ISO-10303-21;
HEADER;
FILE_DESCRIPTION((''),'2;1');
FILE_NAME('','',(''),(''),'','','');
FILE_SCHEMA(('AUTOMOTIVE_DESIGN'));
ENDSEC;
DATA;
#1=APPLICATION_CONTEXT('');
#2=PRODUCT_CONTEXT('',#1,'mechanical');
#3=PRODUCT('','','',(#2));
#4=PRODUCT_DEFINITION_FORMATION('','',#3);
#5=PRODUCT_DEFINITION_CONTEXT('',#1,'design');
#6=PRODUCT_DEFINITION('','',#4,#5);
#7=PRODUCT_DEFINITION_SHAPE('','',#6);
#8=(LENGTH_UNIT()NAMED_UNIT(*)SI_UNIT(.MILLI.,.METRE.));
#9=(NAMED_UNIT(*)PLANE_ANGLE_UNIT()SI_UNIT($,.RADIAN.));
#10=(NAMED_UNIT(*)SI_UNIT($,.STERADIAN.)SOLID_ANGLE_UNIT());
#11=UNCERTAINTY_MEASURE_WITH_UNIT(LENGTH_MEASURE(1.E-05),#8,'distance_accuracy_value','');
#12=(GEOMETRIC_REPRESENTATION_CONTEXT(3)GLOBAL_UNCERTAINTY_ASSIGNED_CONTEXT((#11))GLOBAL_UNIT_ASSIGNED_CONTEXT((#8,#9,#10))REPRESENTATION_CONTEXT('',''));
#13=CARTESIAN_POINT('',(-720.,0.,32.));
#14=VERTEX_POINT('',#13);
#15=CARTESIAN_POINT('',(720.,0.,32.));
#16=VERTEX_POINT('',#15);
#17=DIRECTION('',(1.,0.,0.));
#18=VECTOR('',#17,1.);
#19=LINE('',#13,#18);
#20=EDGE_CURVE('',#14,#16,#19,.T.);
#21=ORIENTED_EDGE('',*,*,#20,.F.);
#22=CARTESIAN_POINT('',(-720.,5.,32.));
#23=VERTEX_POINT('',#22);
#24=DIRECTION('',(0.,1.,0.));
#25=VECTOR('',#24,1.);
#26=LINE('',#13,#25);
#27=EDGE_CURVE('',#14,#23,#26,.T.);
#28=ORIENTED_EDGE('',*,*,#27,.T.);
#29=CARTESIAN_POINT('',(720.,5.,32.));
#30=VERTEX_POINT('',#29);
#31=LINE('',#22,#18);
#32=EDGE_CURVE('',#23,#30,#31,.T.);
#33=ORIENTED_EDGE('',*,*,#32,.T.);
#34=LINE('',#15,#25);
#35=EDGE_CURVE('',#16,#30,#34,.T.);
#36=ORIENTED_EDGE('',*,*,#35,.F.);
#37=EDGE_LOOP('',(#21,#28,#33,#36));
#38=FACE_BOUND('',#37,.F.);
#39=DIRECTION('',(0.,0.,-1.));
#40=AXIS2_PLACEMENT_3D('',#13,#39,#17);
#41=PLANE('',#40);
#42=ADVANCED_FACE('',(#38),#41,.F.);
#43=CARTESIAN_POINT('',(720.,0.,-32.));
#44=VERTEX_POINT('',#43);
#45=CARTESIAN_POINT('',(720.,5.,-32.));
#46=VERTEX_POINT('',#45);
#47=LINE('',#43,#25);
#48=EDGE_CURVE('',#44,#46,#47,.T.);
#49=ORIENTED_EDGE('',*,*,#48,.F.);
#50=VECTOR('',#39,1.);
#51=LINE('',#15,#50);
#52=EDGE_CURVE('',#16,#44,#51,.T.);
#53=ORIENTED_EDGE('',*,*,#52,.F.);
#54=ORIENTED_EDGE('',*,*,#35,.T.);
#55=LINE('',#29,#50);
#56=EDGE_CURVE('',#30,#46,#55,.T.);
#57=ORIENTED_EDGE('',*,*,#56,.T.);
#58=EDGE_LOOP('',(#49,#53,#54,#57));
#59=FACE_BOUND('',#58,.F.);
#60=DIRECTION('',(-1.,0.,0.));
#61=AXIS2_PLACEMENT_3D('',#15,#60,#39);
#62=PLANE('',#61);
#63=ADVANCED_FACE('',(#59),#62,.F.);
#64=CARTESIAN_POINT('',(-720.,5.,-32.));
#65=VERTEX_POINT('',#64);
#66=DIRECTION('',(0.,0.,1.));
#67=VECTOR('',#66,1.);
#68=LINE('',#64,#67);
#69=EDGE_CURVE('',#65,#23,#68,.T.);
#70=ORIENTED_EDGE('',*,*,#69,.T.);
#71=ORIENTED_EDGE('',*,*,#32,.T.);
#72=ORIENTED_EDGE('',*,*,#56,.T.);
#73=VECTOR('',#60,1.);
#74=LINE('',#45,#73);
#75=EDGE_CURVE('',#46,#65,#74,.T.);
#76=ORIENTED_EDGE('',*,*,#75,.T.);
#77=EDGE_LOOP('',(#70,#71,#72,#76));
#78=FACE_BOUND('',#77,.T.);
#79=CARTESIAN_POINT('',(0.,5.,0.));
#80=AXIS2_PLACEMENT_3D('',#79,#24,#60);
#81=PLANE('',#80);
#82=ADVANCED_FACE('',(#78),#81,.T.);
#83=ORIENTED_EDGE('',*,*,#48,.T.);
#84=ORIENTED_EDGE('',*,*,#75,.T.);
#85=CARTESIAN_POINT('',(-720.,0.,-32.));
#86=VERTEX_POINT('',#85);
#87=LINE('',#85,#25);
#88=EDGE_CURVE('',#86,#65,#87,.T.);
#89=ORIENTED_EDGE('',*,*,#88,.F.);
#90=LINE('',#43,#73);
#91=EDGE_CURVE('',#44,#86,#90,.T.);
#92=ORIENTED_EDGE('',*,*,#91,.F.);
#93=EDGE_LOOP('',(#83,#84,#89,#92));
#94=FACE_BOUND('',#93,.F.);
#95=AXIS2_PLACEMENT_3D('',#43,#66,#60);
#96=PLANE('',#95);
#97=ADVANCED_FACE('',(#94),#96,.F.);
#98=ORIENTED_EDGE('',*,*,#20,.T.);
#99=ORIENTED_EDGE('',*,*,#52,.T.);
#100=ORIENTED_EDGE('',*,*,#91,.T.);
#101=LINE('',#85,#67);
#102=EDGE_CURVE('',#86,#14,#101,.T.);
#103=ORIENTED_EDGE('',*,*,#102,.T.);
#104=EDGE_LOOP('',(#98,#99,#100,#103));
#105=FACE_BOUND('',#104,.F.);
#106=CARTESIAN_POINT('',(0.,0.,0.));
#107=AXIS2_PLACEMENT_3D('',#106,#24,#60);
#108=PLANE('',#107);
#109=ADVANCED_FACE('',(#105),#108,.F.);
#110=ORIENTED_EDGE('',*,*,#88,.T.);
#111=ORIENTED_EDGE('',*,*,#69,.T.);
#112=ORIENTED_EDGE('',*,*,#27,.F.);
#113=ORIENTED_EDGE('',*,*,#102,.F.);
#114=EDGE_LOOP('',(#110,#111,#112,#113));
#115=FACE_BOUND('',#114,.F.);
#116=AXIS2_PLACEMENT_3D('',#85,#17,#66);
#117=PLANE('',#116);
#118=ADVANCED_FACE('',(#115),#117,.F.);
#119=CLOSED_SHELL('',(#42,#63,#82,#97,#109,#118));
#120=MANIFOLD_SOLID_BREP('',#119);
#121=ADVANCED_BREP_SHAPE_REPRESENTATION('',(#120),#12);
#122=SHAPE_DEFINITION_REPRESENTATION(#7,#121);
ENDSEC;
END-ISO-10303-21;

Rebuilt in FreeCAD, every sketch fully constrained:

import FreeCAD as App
import Part
import Sketcher
Q = App.Units.Quantity


def add_polygon(sketch, points):
    """Adds a closed chain of lines whose ends are joined by coincident constraints."""
    first, n = sketch.GeometryCount, len(points)
    for a, b in zip(points, points[1:] + points[:1]):
        sketch.addGeometry(Part.LineSegment(App.Vector(*a, 0), App.Vector(*b, 0)), False)
    for i in range(n):
        sketch.addConstraint(Sketcher.Constraint("Coincident", first + i, 2, first + (i + 1) % n, 1))

doc = App.newDocument("Part")
body = doc.addObject("PartDesign::Body", "Body")

# Sketch on XZ plane
sketch1 = doc.addObject("Sketcher::SketchObject", "Sketch")
body.addObject(sketch1)
sketch1.AttachmentSupport = (doc.XZ_Plane, [""])
sketch1.MapMode = "FlatFace"
add_polygon(sketch1, [(-720, -32), (-720, 32), (720, 32), (720, -32)])  # lines 0-3
sketch1.addConstraint([
    Sketcher.Constraint("Vertical", 0),
    Sketcher.Constraint("Horizontal", 1),
    Sketcher.Constraint("Vertical", 2),
    Sketcher.Constraint("Horizontal", 3),
    Sketcher.Constraint("Symmetric", 0, 2, 2, 2, -1, 1),
    Sketcher.Constraint("DistanceX", 1, 1, 1, 2, Q("1440 mm")),
    Sketcher.Constraint("DistanceY", 0, 1, 0, 2, Q("64 mm")),
])
pad1 = doc.addObject("PartDesign::Pad", "Pad")
body.addObject(pad1)
pad1.Profile = sketch1
pad1.Length = 5
pad1.Reversed = True

doc.recompute()
